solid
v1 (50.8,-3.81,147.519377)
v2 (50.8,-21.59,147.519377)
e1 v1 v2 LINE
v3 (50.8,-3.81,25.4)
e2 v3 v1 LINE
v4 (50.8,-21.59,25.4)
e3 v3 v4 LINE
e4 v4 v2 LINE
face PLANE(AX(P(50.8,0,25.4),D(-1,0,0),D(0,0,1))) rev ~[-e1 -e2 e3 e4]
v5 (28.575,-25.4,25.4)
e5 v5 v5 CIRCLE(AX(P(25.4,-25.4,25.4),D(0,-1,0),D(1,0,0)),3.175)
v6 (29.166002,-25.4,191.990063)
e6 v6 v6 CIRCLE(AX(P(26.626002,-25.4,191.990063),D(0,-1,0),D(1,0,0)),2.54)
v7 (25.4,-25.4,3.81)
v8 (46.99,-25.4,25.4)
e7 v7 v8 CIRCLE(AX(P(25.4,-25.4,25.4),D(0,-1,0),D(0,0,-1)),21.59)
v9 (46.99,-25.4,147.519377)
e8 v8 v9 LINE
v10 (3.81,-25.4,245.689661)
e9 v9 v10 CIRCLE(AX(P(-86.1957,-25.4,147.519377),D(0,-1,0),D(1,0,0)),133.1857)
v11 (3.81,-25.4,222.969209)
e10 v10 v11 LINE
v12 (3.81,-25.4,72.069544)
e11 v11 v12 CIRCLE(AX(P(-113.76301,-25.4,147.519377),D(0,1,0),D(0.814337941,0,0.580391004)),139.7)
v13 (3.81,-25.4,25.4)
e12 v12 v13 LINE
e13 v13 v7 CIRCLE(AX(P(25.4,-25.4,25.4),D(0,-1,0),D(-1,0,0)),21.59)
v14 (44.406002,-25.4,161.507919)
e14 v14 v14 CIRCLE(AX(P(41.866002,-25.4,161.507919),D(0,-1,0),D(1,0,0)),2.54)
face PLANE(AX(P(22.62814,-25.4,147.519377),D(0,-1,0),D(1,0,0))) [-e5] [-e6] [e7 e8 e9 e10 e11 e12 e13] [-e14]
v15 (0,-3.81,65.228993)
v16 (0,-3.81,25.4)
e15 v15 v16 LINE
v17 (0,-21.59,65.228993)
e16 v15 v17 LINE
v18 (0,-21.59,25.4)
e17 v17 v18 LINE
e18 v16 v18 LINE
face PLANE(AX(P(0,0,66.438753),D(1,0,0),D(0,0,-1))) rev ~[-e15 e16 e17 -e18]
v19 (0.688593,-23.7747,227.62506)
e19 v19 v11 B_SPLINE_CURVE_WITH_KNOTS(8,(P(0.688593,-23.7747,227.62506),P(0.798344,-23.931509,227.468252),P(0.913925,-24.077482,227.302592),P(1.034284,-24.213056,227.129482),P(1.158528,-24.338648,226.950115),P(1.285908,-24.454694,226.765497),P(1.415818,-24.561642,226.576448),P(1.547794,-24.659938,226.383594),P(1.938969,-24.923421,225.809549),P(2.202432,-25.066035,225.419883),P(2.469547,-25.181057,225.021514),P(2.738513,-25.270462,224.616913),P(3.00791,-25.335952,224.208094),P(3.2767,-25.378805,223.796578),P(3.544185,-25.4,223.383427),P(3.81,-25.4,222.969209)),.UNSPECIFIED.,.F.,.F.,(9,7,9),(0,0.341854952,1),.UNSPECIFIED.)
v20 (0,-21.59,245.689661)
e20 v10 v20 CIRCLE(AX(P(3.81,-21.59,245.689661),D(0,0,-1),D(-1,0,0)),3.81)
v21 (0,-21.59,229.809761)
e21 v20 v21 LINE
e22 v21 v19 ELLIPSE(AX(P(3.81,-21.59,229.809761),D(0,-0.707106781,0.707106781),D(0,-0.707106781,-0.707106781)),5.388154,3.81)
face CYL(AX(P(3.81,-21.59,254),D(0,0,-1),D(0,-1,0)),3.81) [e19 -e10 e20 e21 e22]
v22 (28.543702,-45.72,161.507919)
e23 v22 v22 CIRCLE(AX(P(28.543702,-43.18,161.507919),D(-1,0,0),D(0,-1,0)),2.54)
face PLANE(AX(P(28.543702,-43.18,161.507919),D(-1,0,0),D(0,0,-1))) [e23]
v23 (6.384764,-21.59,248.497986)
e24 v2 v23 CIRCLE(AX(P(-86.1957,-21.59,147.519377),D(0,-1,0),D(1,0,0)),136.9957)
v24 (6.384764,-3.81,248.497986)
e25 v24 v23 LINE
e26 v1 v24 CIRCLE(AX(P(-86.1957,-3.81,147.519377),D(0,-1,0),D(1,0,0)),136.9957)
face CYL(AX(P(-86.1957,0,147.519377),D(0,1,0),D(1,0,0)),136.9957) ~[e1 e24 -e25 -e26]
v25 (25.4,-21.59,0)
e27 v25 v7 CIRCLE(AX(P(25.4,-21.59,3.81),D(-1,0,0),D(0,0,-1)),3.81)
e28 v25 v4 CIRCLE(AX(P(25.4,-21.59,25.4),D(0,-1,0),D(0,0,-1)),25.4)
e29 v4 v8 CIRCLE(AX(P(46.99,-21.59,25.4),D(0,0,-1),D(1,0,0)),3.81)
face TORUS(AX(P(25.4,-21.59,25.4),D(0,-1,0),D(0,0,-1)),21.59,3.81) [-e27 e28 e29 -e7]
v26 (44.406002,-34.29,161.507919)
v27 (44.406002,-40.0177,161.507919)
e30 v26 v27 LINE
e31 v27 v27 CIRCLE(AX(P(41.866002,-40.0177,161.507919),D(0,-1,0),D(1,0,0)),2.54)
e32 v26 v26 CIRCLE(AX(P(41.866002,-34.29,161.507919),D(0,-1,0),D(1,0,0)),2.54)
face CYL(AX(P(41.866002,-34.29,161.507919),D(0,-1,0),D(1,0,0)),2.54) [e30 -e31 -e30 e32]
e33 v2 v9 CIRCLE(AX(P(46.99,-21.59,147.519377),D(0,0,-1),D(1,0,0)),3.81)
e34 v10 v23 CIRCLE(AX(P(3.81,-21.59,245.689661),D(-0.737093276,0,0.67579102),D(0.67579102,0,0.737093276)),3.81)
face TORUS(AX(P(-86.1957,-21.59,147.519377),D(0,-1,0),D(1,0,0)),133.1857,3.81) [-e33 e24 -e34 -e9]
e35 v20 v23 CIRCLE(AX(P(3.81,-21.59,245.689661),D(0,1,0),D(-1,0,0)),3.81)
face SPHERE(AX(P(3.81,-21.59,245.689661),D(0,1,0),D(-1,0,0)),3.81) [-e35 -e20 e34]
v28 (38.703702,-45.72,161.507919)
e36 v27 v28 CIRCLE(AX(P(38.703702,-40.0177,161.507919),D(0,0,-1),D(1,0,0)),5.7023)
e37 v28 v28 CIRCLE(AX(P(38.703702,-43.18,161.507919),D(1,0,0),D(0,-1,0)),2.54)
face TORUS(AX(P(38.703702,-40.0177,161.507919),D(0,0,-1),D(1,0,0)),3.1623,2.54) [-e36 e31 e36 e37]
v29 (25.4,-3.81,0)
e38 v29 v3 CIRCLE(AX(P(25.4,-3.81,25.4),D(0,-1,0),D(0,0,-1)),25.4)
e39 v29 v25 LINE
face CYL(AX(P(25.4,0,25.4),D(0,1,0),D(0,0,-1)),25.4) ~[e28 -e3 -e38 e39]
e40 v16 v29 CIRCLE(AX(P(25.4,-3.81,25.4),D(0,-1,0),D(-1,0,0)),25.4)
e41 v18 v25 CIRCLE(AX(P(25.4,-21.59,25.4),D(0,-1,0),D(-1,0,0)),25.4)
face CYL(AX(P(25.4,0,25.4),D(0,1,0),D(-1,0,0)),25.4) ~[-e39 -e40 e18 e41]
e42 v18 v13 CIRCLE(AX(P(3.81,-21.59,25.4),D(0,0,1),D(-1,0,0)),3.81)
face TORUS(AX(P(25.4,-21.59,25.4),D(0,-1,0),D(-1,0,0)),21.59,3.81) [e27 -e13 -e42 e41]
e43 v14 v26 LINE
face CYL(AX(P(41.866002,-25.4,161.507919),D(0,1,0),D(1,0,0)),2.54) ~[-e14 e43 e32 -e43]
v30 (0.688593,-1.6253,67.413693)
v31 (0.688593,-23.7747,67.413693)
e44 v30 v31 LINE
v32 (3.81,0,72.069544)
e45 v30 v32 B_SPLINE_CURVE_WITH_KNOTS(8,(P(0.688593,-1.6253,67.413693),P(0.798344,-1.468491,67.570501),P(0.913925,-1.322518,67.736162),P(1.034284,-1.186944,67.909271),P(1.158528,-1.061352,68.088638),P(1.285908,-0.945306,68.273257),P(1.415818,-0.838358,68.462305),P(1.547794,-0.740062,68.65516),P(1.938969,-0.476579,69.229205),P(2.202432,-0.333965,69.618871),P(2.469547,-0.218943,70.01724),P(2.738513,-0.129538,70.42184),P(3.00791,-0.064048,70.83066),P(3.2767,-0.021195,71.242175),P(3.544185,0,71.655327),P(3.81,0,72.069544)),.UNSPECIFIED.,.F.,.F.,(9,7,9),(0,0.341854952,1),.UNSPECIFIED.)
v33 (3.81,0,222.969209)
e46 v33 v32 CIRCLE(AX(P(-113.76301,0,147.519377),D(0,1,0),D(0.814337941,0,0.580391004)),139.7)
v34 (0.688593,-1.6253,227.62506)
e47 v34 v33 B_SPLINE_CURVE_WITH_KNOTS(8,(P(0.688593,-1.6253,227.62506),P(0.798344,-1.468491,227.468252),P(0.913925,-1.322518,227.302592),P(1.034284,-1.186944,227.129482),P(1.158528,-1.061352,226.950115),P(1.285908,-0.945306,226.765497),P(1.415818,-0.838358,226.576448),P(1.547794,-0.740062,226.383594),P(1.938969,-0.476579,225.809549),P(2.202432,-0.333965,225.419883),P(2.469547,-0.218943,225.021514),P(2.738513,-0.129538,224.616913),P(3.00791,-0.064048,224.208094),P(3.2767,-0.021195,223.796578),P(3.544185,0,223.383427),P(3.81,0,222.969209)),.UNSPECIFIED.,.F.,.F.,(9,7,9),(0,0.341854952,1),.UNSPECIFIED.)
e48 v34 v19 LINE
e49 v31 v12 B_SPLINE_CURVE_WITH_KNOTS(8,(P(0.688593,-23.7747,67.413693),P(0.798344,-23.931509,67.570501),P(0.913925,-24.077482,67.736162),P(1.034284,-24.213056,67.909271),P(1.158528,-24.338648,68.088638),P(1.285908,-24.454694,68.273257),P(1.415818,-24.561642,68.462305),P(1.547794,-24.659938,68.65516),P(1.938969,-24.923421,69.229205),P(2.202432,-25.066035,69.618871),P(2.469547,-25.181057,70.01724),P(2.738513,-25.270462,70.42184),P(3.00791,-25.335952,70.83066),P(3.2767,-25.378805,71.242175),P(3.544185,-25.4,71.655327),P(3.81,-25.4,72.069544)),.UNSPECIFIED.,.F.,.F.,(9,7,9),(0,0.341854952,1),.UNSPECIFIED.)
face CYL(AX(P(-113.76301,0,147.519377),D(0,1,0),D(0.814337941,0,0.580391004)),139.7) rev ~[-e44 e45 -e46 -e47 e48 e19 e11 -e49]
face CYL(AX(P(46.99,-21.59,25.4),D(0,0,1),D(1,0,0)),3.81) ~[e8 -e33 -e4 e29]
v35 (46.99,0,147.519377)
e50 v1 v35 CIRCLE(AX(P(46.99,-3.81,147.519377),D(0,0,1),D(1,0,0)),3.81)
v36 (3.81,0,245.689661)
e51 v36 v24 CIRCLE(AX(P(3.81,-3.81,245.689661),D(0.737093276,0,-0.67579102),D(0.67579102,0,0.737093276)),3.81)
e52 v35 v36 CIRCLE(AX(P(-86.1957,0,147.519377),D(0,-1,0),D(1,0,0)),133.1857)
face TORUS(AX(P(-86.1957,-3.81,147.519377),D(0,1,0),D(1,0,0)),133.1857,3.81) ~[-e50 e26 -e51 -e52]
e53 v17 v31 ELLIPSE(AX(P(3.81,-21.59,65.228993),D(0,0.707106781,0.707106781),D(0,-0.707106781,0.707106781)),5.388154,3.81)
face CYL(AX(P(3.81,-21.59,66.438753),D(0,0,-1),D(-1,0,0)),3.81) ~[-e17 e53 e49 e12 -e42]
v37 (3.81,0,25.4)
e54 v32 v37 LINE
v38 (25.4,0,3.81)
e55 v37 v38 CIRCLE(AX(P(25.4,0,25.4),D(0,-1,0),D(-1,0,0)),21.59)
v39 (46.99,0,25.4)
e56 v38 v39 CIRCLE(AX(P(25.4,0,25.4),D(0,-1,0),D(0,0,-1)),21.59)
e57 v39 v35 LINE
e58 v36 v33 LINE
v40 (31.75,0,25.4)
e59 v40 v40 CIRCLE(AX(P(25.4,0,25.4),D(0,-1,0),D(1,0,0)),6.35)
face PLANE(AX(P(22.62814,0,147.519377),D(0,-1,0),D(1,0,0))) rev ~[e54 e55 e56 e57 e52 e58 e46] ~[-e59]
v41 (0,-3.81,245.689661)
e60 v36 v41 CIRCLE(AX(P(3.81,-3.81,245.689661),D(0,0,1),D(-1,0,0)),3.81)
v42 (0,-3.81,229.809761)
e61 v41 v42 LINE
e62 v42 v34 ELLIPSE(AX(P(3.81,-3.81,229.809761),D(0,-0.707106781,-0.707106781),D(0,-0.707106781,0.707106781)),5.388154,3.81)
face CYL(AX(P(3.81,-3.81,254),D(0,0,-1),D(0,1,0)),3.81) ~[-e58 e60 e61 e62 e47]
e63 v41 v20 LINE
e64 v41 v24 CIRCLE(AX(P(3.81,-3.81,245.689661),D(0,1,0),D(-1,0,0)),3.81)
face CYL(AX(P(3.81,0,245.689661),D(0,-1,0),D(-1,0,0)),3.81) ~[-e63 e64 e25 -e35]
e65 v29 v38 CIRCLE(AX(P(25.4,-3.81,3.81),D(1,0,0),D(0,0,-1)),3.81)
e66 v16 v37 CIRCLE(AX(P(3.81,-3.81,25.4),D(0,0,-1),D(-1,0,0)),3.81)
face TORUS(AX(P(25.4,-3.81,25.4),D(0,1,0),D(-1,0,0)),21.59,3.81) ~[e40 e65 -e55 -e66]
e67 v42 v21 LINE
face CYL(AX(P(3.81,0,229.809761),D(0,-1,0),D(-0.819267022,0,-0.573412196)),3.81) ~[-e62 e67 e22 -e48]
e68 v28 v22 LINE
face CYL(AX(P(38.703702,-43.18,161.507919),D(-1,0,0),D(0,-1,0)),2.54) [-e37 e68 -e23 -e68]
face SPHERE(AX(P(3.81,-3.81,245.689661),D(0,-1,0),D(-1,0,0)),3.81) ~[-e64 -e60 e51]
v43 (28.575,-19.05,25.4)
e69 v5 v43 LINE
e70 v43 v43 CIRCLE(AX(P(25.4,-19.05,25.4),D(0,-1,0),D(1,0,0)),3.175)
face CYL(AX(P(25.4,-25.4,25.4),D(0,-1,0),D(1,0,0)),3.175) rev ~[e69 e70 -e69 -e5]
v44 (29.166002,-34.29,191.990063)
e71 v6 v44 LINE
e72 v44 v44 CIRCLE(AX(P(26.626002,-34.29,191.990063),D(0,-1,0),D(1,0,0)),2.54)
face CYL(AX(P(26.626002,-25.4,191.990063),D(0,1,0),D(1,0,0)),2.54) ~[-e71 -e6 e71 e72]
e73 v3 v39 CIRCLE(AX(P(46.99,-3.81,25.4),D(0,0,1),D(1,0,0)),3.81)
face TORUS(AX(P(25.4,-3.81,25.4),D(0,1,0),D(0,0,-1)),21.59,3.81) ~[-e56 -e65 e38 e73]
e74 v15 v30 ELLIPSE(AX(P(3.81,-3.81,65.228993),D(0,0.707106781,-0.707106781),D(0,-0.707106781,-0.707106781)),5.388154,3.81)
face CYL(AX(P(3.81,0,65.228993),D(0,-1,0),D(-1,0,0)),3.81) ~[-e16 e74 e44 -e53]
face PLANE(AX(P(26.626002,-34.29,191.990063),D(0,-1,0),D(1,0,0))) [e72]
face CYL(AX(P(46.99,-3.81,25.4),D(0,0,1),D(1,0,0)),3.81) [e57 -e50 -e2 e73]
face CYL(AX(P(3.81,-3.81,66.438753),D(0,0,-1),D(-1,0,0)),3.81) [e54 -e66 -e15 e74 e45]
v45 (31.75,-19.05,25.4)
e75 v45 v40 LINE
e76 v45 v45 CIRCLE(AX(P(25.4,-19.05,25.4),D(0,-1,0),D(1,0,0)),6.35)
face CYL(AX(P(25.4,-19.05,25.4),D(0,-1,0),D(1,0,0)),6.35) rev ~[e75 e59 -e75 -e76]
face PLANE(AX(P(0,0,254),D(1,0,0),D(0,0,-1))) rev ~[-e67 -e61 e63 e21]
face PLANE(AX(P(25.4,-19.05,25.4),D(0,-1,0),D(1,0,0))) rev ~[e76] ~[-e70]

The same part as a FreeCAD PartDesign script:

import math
import FreeCAD as App
import Part
import Sketcher

V = App.Vector
Q = App.Units.Quantity


def edges_at(feature, points):
    """Names of the edges that pass closest to the given points."""
    edges = feature.Shape.Edges
    near = lambda p: min(range(len(edges)), key=lambda i: edges[i].distToShape(Part.Vertex(*p))[0])
    return sorted({f"Edge{near(p) + 1}" for p in points})

doc = App.newDocument("Part")
params = doc.addObject("Spreadsheet::Sheet", "Params")
for row, (alias, value) in enumerate([
    ("sketch1_radius", "1 in"),
    ("sketch1_radius2", "5.5 in"),
    ("sketch1_height", "1 in"),
    ("pad1_length", "1 in"),
    ("sketch2_diameter", "0.25 in"),
    ("pocket1_length", "0.25 in"),
    ("fillet_radius", "0.15 in"),
    ("sketch3_diameter", "0.2 in"),
    ("pad2_length", "0.35 in"),
    ("sketch4_diameter", "0.2 in"),
    ("sketch5_width", "0.4 in"),
    ("sketch6_diameter", "0.5 in"),
    ("pocket2_length", "1 in"),
], start=1):
    params.set(f"A{row}", alias)
    params.set(f"B{row}", "=" + value)
    params.setAlias(f"B{row}", alias)

body = doc.addObject("PartDesign::Body", "Body")

# Sketch on XZ plane
sketch1 = doc.addObject("Sketcher::SketchObject", "Sketch")
body.addObject(sketch1)
sketch1.AttachmentSupport = (doc.XZ_Plane, [""])
sketch1.MapMode = "FlatFace"
sketch1.addGeometry(Part.LineSegment(V(0, 66, 0), V(0, 25, 0)), False)
sketch1.addGeometry(Part.ArcOfCircle(Part.Circle(V(25, 25, 0), V(0, 0, 1), 25), math.radians(180), math.radians(270)), False)
sketch1.addGeometry(Part.ArcOfCircle(Part.Circle(V(25, 25, 0), V(0, 0, 1), 25), math.radians(-90), math.radians(0)), False)
sketch1.addGeometry(Part.LineSegment(V(51, 25, 0), V(51, 148, 0)), False)
sketch1.addGeometry(Part.ArcOfCircle(Part.Circle(V(-86, 148, 0), V(0, 0, 1), 137), math.radians(0), math.radians(51)), False)
sketch1.addGeometry(Part.LineSegment(V(0, 254, 0), V(0, 229, 0)), False)
sketch1.addGeometry(Part.ArcOfCircle(Part.Circle(V(-114, 148, 0), V(0, 0, 1), 140), math.radians(-35), math.radians(35)), False)
sketch1.addConstraint(Sketcher.Constraint("Tangent", 0, 2, 1, 1))
sketch1.addConstraint(Sketcher.Constraint("Tangent", 1, 2, 2, 1))
sketch1.addConstraint(Sketcher.Constraint("Tangent", 2, 2, 3, 1))
sketch1.addConstraint(Sketcher.Constraint("Tangent", 3, 2, 4, 1))
sketch1.addConstraint(Sketcher.Constraint("Coincident", 4, 2, 5, 1))
sketch1.addConstraint(Sketcher.Constraint("Coincident", 5, 2, 6, 2))
sketch1.addConstraint(Sketcher.Constraint("Coincident", 6, 1, 0, 1))
sketch1.addConstraint(Sketcher.Constraint("Vertical", 0))
sketch1.addConstraint(Sketcher.Constraint("Vertical", 3))
sketch1.addConstraint(Sketcher.Constraint("Vertical", 5))
sketch1.addConstraint(Sketcher.Constraint("Equal", 1, 2))
sketch1.addConstraint(Sketcher.Constraint("PointOnObject", 0, 2, -2))
sketch1.addConstraint(Sketcher.Constraint("PointOnObject", 1, 2, -1))
sketch1.addConstraint(Sketcher.Constraint("PointOnObject", 4, 2, -2))
sketch1.addConstraint(Sketcher.Constraint("Horizontal", 4, 3, 6, 3))
sketch1.addConstraint(Sketcher.Constraint("Vertical", 2, 3, 1, 2))
sketch1.addConstraint(Sketcher.Constraint("Radius", 1, Q("1 in")))
sketch1.addConstraint(Sketcher.Constraint("Radius", 6, Q("5.5 in")))
sketch1.addConstraint(Sketcher.Constraint("DistanceY", 5, 2, 5, 1, Q("1 in")))
sketch1.addConstraint(Sketcher.Constraint("DistanceY", -1, 1, 4, 2, Q("10 in")))
sketch1.addConstraint(Sketcher.Constraint("Radius", 4, Q("136.9957 mm")))
sketch1.setExpression("Constraints[16]", "Params.sketch1_radius")
sketch1.setExpression("Constraints[17]", "Params.sketch1_radius2")
sketch1.setExpression("Constraints[18]", "Params.sketch1_height")
pad1 = doc.addObject("PartDesign::Pad", "Pad")
body.addObject(pad1)
pad1.Profile = sketch1
pad1.setExpression("Length", "Params.pad1_length")

# Sketch on XZ plane
sketch2 = doc.addObject("Sketcher::SketchObject", "Sketch001")
body.addObject(sketch2)
sketch2.AttachmentSupport = (doc.XZ_Plane, [""])
sketch2.MapMode = "FlatFace"
sketch2.AttachmentOffset = App.Placement(V(0, 0, 1 * 25.4), App.Rotation())
sketch2.addGeometry(Part.Circle(V(25.4, 25.4, 0), V(0, 0, 1), 3.2), False)
sketch2.addConstraint(Sketcher.Constraint("Diameter", 0, Q("0.25 in")))
sketch2.addConstraint(Sketcher.Constraint("DistanceX", -1, 1, 0, 3, Q("1 in")))
sketch2.addConstraint(Sketcher.Constraint("DistanceY", -1, 1, 0, 3, Q("1 in")))
sketch2.setExpression("Constraints[0]", "Params.sketch2_diameter")
pocket1 = doc.addObject("PartDesign::Pocket", "Pocket")
body.addObject(pocket1)
pocket1.Profile = sketch2
pocket1.setExpression("Length", "Params.pocket1_length")
doc.recompute()

fillet = doc.addObject("PartDesign::Fillet", "Fillet")
body.addObject(fillet)
fillet.Base = (pocket1, edges_at(pocket1, [
    (0, -12.7, 254),
    (0, -12.7, 228.6),
    (0, 0, 241.3),
    (0, -25.4, 241.3),
    (0, -12.7, 66.439),
    (0, -12.7, 25.4),
    (0, 0, 45.919),
    (0, -25.4, 45.919),
]))
fillet.setExpression("Radius", "Params.fillet_radius")

# Sketch on XZ plane
sketch3 = doc.addObject("Sketcher::SketchObject", "Sketch002")
body.addObject(sketch3)
sketch3.AttachmentSupport = (doc.XZ_Plane, [""])
sketch3.MapMode = "FlatFace"
sketch3.AttachmentOffset = App.Placement(V(0, 0, 1 * 25.4), App.Rotation())
sketch3.addGeometry(Part.Circle(V(26.6, 192, 0), V(0, 0, 1), 2.5), False)
sketch3.addGeometry(Part.Circle(V(41.9, 161.5, 0), V(0, 0, 1), 2.5), False)
sketch3.addConstraint(Sketcher.Constraint("Equal", 0, 1))
sketch3.addConstraint(Sketcher.Constraint("Diameter", 0, Q("0.2 in")))
sketch3.addConstraint(Sketcher.Constraint("DistanceX", 0, 3, 1, 3, Q("0.6 in")))
sketch3.addConstraint(Sketcher.Constraint("DistanceY", -1, 1, 1, 3, Q("161.507919 mm")))
sketch3.addConstraint(Sketcher.Constraint("DistanceX", -1, 1, 0, 3, Q("26.626002 mm")))
sketch3.addConstraint(Sketcher.Constraint("DistanceY", -1, 1, 0, 3, Q("191.990063 mm")))
sketch3.setExpression("Constraints[1]", "Params.sketch3_diameter")
pad2 = doc.addObject("PartDesign::Pad", "Pad001")
body.addObject(pad2)
pad2.Profile = sketch3
pad2.setExpression("Length", "Params.pad2_length")

# Sketch on XZ plane
sketch4 = doc.addObject("Sketcher::SketchObject", "Sketch003")
body.addObject(sketch4)
sketch4.AttachmentSupport = (doc.XZ_Plane, [""])
sketch4.MapMode = "FlatFace"
sketch4.AttachmentOffset = App.Placement(V(0, 0, 1.35 * 25.4), App.Rotation())
sketch4.addGeometry(Part.Circle(V(41.9, 161.5, 0), V(0, 0, 1), 2.5), False)
sketch4.addConstraint(Sketcher.Constraint("Diameter", 0, Q("0.2 in")))
sketch4.addConstraint(Sketcher.Constraint("DistanceY", -1, 1, 0, 3, Q("161.507919 mm")))
sketch4.addConstraint(Sketcher.Constraint("DistanceX", -1, 1, 0, 3, Q("41.866002 mm")))
sketch4.setExpression("Constraints[0]", "Params.sketch4_diameter")

# Sketch on XY plane
sketch5 = doc.addObject("Sketcher::SketchObject", "Sketch004")
body.addObject(sketch5)
sketch5.AttachmentSupport = (doc.XY_Plane, [""])
sketch5.MapMode = "FlatFace"
sketch5.AttachmentOffset = App.Placement(V(0, 0, 161.507932), App.Rotation())
sketch5.addGeometry(Part.LineSegment(V(41.9, -34.3, 0), V(41.9, -40, 0)), False)
sketch5.addGeometry(Part.ArcOfCircle(Part.Circle(V(38.7, -40, 0), V(0, 0, 1), 3.2), math.radians(-90), math.radians(0)), False)
sketch5.addGeometry(Part.LineSegment(V(38.7, -43.2, 0), V(28.5, -43.2, 0)), False)
sketch5.addConstraint(Sketcher.Constraint("Tangent", 0, 2, 1, 2))
sketch5.addConstraint(Sketcher.Constraint("Tangent", 1, 1, 2, 1))
sketch5.addConstraint(Sketcher.Constraint("Vertical", 0))
sketch5.addConstraint(Sketcher.Constraint("Horizontal", 2))
sketch5.addConstraint(Sketcher.Constraint("DistanceX", 2, 2, 2, 1, Q("0.4 in")))
sketch5.addConstraint(Sketcher.Constraint("DistanceY", 1, 1, -1, 1, Q("1.7 in")))
sketch5.addConstraint(Sketcher.Constraint("Radius", 1, Q("0.1245 in")))
sketch5.addConstraint(Sketcher.Constraint("DistanceY", 0, 1, -1, 1, Q("1.35 in")))
sketch5.addConstraint(Sketcher.Constraint("DistanceX", -1, 1, 1, 3, Q("38.703702 mm")))
sketch5.setExpression("Constraints[4]", "Params.sketch5_width")
doc.recompute()

additivepipe = doc.addObject("PartDesign::AdditivePipe", "AdditivePipe")
body.addObject(additivepipe)
additivepipe.Profile = sketch4
additivepipe.Spine = (sketch5, ["Edge1", "Edge2", "Edge3"])

# Sketch on XZ plane
sketch6 = doc.addObject("Sketcher::SketchObject", "Sketch005")
body.addObject(sketch6)
sketch6.AttachmentSupport = (doc.XZ_Plane, [""])
sketch6.MapMode = "FlatFace"
sketch6.AttachmentOffset = App.Placement(V(0, 0, 0.75 * 25.4), App.Rotation())
sketch6.addGeometry(Part.Circle(V(25, 25, 0), V(0, 0, 1), 6), False)
sketch6.addConstraint(Sketcher.Constraint("Diameter", 0, Q("0.5 in")))
sketch6.addConstraint(Sketcher.Constraint("DistanceX", -1, 1, 0, 3, Q("1 in")))
sketch6.addConstraint(Sketcher.Constraint("DistanceY", -1, 1, 0, 3, Q("1 in")))
sketch6.setExpression("Constraints[0]", "Params.sketch6_diameter")
pocket2 = doc.addObject("PartDesign::Pocket", "Pocket001")
body.addObject(pocket2)
pocket2.Profile = sketch6
pocket2.setExpression("Length", "Params.pocket2_length")

doc.recompute()
